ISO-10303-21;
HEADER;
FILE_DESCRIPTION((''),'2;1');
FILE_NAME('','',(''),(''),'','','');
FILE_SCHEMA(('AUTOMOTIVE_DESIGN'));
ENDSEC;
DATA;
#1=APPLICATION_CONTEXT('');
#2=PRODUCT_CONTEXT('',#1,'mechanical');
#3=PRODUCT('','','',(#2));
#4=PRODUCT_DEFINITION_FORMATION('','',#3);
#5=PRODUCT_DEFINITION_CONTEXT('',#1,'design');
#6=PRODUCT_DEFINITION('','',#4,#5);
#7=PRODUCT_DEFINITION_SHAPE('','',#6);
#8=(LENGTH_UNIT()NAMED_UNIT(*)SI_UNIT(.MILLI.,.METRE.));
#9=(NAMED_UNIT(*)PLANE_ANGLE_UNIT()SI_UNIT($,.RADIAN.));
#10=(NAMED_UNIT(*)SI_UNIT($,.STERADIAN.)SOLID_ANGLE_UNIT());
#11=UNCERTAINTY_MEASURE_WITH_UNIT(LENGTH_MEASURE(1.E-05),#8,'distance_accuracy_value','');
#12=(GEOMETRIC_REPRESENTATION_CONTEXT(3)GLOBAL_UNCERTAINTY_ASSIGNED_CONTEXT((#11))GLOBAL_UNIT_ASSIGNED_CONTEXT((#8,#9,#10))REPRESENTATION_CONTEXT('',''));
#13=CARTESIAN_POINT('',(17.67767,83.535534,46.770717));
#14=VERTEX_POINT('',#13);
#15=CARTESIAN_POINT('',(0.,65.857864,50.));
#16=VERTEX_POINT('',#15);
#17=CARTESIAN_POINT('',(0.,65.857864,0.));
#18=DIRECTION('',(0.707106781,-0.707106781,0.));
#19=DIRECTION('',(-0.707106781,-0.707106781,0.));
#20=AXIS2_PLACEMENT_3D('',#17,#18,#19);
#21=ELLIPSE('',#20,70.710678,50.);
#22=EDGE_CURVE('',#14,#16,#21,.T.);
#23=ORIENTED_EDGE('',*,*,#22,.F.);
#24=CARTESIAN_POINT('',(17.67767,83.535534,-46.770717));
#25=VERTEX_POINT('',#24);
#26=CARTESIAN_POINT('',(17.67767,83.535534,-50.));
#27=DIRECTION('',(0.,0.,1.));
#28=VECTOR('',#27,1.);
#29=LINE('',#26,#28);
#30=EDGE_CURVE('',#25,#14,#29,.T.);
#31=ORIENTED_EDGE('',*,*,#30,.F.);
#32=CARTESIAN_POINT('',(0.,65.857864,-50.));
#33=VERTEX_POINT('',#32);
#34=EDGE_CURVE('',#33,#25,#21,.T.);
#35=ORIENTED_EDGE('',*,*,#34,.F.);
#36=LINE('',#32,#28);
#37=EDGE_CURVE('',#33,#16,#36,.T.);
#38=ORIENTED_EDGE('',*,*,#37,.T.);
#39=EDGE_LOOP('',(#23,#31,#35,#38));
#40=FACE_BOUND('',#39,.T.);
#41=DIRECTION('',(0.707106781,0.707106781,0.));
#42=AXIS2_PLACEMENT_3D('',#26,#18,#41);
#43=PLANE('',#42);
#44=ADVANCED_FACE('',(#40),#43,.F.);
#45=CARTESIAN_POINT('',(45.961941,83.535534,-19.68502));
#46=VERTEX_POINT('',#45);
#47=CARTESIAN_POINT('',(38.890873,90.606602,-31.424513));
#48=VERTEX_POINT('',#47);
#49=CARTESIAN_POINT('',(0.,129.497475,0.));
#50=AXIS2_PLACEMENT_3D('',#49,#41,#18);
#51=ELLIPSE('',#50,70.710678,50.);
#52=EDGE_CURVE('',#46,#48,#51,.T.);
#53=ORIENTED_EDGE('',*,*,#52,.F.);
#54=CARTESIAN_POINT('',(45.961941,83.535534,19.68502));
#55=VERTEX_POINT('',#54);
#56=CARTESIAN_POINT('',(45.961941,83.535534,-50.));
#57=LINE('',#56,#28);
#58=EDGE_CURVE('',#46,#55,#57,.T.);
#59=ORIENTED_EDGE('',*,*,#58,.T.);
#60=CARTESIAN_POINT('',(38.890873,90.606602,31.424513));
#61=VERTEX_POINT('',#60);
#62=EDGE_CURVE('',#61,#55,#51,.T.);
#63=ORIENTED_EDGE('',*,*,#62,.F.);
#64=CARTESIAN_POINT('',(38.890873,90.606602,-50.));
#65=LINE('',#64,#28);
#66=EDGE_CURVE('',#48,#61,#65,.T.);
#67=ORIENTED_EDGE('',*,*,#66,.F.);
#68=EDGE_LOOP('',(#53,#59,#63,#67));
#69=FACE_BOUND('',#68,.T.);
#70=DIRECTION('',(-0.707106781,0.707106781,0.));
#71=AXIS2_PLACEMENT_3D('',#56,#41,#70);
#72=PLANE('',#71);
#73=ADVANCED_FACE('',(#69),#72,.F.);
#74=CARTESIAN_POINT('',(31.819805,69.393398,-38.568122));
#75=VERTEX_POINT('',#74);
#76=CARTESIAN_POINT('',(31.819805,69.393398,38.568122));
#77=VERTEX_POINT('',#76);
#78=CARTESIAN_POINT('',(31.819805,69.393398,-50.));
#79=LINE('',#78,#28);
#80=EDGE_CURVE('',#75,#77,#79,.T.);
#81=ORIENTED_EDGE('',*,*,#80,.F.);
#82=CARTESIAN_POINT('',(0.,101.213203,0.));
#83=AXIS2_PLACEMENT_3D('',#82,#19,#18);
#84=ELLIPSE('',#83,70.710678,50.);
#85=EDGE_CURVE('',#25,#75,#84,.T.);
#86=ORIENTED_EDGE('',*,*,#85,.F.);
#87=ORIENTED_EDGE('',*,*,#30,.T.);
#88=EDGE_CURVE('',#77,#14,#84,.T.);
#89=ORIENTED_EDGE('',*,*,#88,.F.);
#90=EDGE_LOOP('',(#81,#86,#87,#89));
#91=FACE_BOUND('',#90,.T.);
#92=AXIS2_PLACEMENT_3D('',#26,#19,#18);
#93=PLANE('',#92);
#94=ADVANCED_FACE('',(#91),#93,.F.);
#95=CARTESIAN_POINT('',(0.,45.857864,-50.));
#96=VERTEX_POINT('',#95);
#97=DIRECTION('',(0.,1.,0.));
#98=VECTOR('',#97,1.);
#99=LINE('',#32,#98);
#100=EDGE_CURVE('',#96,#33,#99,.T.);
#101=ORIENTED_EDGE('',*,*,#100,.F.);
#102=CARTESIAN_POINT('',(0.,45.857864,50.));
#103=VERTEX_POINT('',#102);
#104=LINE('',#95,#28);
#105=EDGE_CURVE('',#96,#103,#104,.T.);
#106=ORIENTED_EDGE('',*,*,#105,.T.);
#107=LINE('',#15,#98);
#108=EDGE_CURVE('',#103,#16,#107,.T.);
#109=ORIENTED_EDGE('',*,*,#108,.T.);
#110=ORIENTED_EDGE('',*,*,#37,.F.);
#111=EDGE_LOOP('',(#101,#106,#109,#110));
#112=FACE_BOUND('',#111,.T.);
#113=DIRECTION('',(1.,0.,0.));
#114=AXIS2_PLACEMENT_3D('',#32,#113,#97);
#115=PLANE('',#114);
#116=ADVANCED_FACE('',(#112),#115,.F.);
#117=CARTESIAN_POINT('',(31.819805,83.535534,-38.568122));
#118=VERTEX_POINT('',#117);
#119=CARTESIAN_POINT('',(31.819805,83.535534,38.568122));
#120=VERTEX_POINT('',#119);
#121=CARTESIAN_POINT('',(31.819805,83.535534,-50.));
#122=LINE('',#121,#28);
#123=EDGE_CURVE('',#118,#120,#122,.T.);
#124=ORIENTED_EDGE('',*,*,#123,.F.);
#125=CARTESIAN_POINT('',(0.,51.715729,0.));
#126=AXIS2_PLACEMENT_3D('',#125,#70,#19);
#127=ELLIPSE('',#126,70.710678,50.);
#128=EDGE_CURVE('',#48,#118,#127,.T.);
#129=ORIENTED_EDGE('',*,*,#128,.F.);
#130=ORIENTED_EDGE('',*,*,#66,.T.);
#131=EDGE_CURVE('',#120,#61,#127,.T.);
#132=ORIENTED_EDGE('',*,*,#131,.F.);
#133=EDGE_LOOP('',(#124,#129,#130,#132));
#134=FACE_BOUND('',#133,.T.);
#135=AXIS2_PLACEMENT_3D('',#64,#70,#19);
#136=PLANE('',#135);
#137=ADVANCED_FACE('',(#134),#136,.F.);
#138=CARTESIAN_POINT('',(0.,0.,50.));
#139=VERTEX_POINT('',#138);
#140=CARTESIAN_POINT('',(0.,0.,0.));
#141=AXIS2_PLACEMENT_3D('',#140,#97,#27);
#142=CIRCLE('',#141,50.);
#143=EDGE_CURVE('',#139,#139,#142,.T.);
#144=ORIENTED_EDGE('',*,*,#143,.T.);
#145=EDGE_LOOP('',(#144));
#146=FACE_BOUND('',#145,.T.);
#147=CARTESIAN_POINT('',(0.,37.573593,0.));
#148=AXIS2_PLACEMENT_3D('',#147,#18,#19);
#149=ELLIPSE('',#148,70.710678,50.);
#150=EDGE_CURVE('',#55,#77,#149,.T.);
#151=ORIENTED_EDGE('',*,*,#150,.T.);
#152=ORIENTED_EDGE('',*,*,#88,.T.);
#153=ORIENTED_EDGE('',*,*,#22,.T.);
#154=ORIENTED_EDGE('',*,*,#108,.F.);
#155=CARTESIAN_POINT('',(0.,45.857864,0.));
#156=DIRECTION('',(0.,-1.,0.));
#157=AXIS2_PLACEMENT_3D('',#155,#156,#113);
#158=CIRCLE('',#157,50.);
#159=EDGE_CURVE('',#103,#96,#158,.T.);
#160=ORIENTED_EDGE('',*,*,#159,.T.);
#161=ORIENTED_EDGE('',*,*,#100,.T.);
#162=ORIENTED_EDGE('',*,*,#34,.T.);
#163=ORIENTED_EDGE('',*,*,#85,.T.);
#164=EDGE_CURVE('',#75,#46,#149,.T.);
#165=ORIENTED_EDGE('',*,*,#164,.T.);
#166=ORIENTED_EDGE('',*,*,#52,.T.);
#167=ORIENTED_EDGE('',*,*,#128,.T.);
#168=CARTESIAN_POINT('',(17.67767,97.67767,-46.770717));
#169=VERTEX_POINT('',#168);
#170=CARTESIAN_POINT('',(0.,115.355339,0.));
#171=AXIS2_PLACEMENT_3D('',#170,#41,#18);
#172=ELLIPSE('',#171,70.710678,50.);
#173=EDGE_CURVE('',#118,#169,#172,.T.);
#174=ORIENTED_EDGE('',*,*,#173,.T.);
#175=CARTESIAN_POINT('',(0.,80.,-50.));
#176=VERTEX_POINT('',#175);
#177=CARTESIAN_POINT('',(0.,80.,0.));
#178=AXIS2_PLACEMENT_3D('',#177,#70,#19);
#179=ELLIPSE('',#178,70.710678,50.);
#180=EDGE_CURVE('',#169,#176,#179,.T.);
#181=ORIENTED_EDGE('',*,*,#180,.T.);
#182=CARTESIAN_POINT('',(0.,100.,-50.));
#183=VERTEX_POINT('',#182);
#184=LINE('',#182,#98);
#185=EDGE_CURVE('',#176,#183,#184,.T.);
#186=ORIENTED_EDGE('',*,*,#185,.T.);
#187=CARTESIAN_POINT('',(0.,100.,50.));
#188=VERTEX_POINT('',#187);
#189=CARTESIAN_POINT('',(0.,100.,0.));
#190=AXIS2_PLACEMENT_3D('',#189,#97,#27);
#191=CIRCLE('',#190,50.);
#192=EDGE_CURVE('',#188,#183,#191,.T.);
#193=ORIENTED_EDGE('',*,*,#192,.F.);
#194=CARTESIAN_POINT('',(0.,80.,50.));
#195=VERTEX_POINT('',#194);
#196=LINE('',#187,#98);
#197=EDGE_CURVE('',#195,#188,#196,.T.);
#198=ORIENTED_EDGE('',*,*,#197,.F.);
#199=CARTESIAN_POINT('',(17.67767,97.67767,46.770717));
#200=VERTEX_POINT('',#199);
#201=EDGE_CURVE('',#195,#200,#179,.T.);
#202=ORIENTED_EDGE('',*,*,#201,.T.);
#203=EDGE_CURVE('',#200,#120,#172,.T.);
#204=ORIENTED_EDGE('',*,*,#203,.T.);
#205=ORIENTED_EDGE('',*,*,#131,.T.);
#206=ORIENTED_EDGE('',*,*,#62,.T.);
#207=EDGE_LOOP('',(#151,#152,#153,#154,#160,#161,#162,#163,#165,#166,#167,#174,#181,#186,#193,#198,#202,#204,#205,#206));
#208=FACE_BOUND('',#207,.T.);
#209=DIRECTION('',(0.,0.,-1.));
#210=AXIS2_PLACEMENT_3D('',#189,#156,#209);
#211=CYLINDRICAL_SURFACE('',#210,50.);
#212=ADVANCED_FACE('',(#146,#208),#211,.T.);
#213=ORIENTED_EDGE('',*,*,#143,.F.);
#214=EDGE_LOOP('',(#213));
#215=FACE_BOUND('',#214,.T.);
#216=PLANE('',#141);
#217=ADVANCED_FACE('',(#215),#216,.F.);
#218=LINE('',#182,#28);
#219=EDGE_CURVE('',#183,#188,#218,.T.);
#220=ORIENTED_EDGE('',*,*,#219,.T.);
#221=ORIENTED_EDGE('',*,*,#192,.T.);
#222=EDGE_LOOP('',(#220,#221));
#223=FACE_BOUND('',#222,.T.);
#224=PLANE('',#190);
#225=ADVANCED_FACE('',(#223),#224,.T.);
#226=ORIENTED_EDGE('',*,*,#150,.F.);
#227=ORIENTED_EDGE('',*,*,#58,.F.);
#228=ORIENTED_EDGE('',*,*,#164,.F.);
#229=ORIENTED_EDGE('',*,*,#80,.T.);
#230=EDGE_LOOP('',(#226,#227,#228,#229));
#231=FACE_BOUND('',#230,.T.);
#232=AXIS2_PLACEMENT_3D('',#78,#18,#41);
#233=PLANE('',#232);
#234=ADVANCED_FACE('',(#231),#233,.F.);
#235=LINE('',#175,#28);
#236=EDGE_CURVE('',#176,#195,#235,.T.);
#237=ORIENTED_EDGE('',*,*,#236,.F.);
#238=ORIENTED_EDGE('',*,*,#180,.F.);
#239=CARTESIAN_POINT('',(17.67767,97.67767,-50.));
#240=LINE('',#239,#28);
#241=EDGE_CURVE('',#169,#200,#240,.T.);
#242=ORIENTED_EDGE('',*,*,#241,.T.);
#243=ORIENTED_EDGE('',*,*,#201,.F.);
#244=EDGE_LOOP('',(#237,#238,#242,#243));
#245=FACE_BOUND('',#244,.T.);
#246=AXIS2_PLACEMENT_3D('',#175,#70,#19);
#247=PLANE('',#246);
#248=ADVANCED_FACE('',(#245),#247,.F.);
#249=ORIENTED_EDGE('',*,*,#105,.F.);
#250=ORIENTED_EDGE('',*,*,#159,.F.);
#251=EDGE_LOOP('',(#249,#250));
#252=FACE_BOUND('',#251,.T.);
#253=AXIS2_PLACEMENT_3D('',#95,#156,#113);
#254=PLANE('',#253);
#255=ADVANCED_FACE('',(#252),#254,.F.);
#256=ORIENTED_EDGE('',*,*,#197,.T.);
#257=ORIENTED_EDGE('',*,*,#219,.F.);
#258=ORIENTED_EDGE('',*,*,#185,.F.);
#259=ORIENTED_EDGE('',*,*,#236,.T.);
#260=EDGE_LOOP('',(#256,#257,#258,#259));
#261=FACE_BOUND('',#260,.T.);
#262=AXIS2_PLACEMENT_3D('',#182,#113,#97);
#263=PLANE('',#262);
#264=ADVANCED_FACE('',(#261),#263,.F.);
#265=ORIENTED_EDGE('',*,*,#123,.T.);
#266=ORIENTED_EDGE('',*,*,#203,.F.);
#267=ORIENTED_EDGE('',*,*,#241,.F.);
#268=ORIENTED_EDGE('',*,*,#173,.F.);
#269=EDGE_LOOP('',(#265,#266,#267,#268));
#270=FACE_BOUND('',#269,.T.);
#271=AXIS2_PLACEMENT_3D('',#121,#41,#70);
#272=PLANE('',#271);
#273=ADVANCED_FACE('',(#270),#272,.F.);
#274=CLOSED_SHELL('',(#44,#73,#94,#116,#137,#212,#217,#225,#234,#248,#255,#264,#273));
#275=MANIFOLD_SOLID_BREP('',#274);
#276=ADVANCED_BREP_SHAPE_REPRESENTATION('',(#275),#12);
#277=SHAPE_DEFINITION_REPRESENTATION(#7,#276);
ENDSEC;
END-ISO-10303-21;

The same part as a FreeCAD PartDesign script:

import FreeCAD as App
import Part
import Sketcher
from FreeCAD import Vector

doc = App.newDocument("Part")
body = doc.addObject("PartDesign::Body", "Body")

# Sketch on XZ plane
sketch1 = body.newObject("Sketcher::SketchObject", "Sketch")
sketch1.AttachmentSupport = (doc.getObject("XZ_Plane"), [""])
sketch1.MapMode = "FlatFace"
sketch1.addGeometry(Part.Circle(Vector(0, 0, 0), Vector(0, 0, 1), 50), False)
sketch1.addConstraint(Sketcher.Constraint("Coincident", 0, 3, -1, 1))
sketch1.addConstraint(Sketcher.Constraint("Diameter", 0, 100.0))
pad1 = body.newObject("PartDesign::Pad", "Pad")
pad1.Profile = sketch1
pad1.Length = 100
pad1.Reversed = True

# Sketch on XY plane
sketch2 = body.newObject("Sketcher::SketchObject", "Sketch001")
sketch2.AttachmentSupport = (doc.getObject("XY_Plane"), [""])
sketch2.MapMode = "FlatFace"
sketch2.addGeometry(Part.LineSegment(Vector(0, 80, 0), Vector(0, 100, 0)), False)
sketch2.addGeometry(Part.LineSegment(Vector(0, 100, 0), Vector(-50, 100, 0)), False)
sketch2.addGeometry(Part.LineSegment(Vector(-50, 100, 0), Vector(-50, 46, 0)), False)
sketch2.addGeometry(Part.LineSegment(Vector(-50, 46, 0), Vector(0, 46, 0)), False)
sketch2.addGeometry(Part.LineSegment(Vector(0, 46, 0), Vector(0, 66, 0)), False)
sketch2.addGeometry(Part.LineSegment(Vector(0, 66, 0), Vector(18, 84, 0)), False)
sketch2.addGeometry(Part.LineSegment(Vector(18, 84, 0), Vector(32, 69, 0)), False)
sketch2.addGeometry(Part.LineSegment(Vector(32, 69, 0), Vector(46, 84, 0)), False)
sketch2.addGeometry(Part.LineSegment(Vector(46, 84, 0), Vector(39, 91, 0)), False)
sketch2.addGeometry(Part.LineSegment(Vector(39, 91, 0), Vector(32, 84, 0)), False)
sketch2.addGeometry(Part.LineSegment(Vector(32, 84, 0), Vector(18, 98, 0)), False)
sketch2.addGeometry(Part.LineSegment(Vector(18, 98, 0), Vector(0, 80, 0)), False)
sketch2.addConstraint(Sketcher.Constraint("Coincident", 0, 2, 1, 1))
sketch2.addConstraint(Sketcher.Constraint("Coincident", 1, 2, 2, 1))
sketch2.addConstraint(Sketcher.Constraint("Coincident", 2, 2, 3, 1))
sketch2.addConstraint(Sketcher.Constraint("Coincident", 3, 2, 4, 1))
sketch2.addConstraint(Sketcher.Constraint("Coincident", 4, 2, 5, 1))
sketch2.addConstraint(Sketcher.Constraint("Coincident", 5, 2, 6, 1))
sketch2.addConstraint(Sketcher.Constraint("Coincident", 6, 2, 7, 1))
sketch2.addConstraint(Sketcher.Constraint("Coincident", 7, 2, 8, 1))
sketch2.addConstraint(Sketcher.Constraint("Coincident", 8, 2, 9, 1))
sketch2.addConstraint(Sketcher.Constraint("Coincident", 9, 2, 10, 1))
sketch2.addConstraint(Sketcher.Constraint("Coincident", 10, 2, 11, 1))
sketch2.addConstraint(Sketcher.Constraint("Coincident", 11, 2, 0, 1))
sketch2.addConstraint(Sketcher.Constraint("Vertical", 0))
sketch2.addConstraint(Sketcher.Constraint("Horizontal", 1))
sketch2.addConstraint(Sketcher.Constraint("Vertical", 2))
sketch2.addConstraint(Sketcher.Constraint("Horizontal", 3))
sketch2.addConstraint(Sketcher.Constraint("Vertical", 4))
sketch2.addConstraint(Sketcher.Constraint("PointOnObject", 0, 2, -2))
sketch2.addConstraint(Sketcher.Constraint("PointOnObject", 3, 2, -2))
sketch2.addConstraint(Sketcher.Constraint("Perpendicular", 5, 6))
sketch2.addConstraint(Sketcher.Constraint("Perpendicular", 6, 7))
sketch2.addConstraint(Sketcher.Constraint("Perpendicular", 7, 8))
sketch2.addConstraint(Sketcher.Constraint("Perpendicular", 8, 9))
sketch2.addConstraint(Sketcher.Constraint("Perpendicular", 9, 10))
sketch2.addConstraint(Sketcher.Constraint("Perpendicular", 10, 11))
sketch2.addConstraint(Sketcher.Constraint("Horizontal", 5, 2, 7, 2))
sketch2.addConstraint(Sketcher.Constraint("Horizontal", 7, 2, 9, 2))
sketch2.addConstraint(Sketcher.Constraint("Vertical", 6, 2, 9, 2))
sketch2.addConstraint(Sketcher.Constraint("Vertical", 5, 2, 10, 2))
sketch2.addConstraint(Sketcher.Constraint("Equal", 0, 4))
sketch2.addConstraint(Sketcher.Constraint("Equal", 6, 7))
sketch2.addConstraint(Sketcher.Constraint("DistanceX", 1, 2, 1, 1, 50.0))
sketch2.addConstraint(Sketcher.Constraint("DistanceY", 0, 1, 0, 2, 20.0))
sketch2.addConstraint(Sketcher.Constraint("Distance", 5, 25.0))
sketch2.addConstraint(Sketcher.Constraint("Distance", 6, 20.0))
sketch2.addConstraint(Sketcher.Constraint("DistanceY", -1, 1, 0, 2, 100.0))
pocket1 = body.newObject("PartDesign::Pocket", "Pocket")
pocket1.Profile = sketch2
pocket1.Type = "ThroughAll"
pocket1.Midplane = True

doc.recompute()
